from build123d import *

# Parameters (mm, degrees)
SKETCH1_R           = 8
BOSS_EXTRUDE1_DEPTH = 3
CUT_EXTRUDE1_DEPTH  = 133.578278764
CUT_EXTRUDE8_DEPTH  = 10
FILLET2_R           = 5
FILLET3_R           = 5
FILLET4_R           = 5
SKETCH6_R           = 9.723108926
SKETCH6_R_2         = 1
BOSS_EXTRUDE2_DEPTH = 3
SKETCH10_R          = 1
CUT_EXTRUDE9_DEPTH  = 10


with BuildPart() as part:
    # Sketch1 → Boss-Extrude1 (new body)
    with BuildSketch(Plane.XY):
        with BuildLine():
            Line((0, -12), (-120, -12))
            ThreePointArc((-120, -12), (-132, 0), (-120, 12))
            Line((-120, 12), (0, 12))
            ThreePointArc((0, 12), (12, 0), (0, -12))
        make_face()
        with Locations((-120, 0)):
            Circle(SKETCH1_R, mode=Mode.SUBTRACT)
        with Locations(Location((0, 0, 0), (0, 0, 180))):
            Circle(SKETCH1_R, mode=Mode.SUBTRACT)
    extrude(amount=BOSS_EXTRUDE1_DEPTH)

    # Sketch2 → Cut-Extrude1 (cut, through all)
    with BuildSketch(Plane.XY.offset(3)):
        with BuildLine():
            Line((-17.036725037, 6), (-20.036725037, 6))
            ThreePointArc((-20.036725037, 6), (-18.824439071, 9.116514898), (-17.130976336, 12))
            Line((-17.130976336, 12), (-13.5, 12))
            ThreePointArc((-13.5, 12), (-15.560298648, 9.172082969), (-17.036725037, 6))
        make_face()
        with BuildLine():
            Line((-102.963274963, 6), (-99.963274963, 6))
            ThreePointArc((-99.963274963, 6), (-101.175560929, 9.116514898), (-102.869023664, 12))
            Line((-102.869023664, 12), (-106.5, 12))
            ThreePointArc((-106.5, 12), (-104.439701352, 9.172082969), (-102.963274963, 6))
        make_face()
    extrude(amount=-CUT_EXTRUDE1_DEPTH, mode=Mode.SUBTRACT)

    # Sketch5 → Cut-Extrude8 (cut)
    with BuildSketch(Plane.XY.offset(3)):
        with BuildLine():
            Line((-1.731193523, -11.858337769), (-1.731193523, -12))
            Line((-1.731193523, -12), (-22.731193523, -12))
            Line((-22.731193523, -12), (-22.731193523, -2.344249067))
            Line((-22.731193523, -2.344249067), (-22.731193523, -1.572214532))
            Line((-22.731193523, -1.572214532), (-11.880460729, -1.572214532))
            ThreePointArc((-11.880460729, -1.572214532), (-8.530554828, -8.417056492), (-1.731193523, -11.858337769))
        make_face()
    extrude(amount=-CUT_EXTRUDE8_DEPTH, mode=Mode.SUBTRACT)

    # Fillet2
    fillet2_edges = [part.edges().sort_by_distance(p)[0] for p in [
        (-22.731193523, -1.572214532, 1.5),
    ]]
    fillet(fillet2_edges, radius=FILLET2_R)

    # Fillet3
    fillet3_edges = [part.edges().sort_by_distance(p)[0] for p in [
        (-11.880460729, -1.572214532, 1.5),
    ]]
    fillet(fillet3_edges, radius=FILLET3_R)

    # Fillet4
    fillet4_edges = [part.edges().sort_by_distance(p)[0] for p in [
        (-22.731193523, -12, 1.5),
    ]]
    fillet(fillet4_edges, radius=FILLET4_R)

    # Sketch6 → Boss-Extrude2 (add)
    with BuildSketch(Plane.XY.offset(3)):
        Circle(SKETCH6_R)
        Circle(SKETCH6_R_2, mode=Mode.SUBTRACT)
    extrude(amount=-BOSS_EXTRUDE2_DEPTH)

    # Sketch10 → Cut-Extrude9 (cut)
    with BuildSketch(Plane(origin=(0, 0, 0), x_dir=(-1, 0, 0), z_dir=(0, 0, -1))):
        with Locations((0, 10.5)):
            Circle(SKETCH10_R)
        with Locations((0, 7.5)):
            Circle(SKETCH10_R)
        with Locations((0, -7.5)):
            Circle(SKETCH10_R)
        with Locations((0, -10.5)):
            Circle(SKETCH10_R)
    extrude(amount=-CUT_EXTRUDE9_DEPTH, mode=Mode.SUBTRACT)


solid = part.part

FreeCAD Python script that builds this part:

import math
import FreeCAD as App
import Part
import Sketcher

V = App.Vector
Q = App.Units.Quantity


def edges_at(feature, points):
    """Names of the edges that pass closest to the given points."""
    edges = feature.Shape.Edges
    near = lambda p: min(range(len(edges)), key=lambda i: edges[i].distToShape(Part.Vertex(*p))[0])
    return sorted({f"Edge{near(p) + 1}" for p in points})

doc = App.newDocument("Part")
body = doc.addObject("PartDesign::Body", "Body")

# Sketch on XY plane
sketch1 = body.newObject("Sketcher::SketchObject", "Sketch")
sketch1.AttachmentSupport = (doc.getObject("XY_Plane"), [""])
sketch1.MapMode = "FlatFace"
sketch1.addGeometry([
    Part.LineSegment(V(-120, -12, 0), V(0, -12, 0)),  # 0
    Part.ArcOfCircle(Part.Circle(V(0, 0, 0), V(0, 0, 1), 12), math.radians(-90), math.radians(90)),  # 1
    Part.LineSegment(V(0, 12, 0), V(-120, 12, 0)),  # 2
    Part.ArcOfCircle(Part.Circle(V(-120, 0, 0), V(0, 0, 1), 12), math.radians(90), math.radians(270)),  # 3
    Part.Circle(V(0, 0, 0), V(0, 0, 1), 8),  # 4
    Part.Circle(V(-120, 0, 0), V(0, 0, 1), 8),  # 5
], False)
sketch1.addConstraint([
    Sketcher.Constraint("Tangent", 0, 2, 1, 1),
    Sketcher.Constraint("Tangent", 1, 2, 2, 1),
    Sketcher.Constraint("Tangent", 2, 2, 3, 1),
    Sketcher.Constraint("Tangent", 3, 2, 0, 1),
    Sketcher.Constraint("Horizontal", 0),
    Sketcher.Constraint("Horizontal", 2),
    Sketcher.Constraint("Coincident", 1, 3, -1, 1),
    Sketcher.Constraint("Coincident", 4, 3, -1, 1),
    Sketcher.Constraint("Coincident", 5, 3, 3, 3),
    Sketcher.Constraint("Equal", 4, 5),
    Sketcher.Constraint("Diameter", 4, Q("16 mm")),
    Sketcher.Constraint("Radius", 1, Q("12 mm")),
    Sketcher.Constraint("DistanceX", 0, 1, 0, 2, Q("120 mm")),
])
pad1 = body.newObject("PartDesign::Pad", "Pad")
pad1.Profile = sketch1
pad1.Length = 3

# Sketch on XY plane
sketch2 = body.newObject("Sketcher::SketchObject", "Sketch001")
sketch2.AttachmentSupport = (doc.getObject("XY_Plane"), [""])
sketch2.MapMode = "FlatFace"
sketch2.AttachmentOffset = App.Placement(V(0, 0, 3), App.Rotation())
sketch2.addGeometry([
    Part.LineSegment(V(-20.036725, 6, 0), V(-17.036725, 6, 0)),  # 0
    Part.ArcOfCircle(Part.Circle(V(0, 0, 0), V(0, 0, 1), 18.062392), math.radians(138.366461), math.radians(160.598737)),  # 1
    Part.LineSegment(V(-13.5, 12, 0), V(-17.130976, 12, 0)),  # 2
    Part.ArcOfCircle(Part.Circle(V(0, 0, 0), V(0, 0, 1), 20.915792), math.radians(144.989316), math.radians(163.329664)),  # 3
    Part.LineSegment(V(-102.963275, 6, 0), V(-99.963275, 6, 0)),  # 4
    Part.ArcOfCircle(Part.Circle(V(-120, 0, 0), V(0, 0, 1), 20.915792), math.radians(16.670336), math.radians(35.010684)),  # 5
    Part.LineSegment(V(-102.869024, 12, 0), V(-106.5, 12, 0)),  # 6
    Part.ArcOfCircle(Part.Circle(V(-120, 0, 0), V(0, 0, 1), 18.062392), math.radians(19.401263), math.radians(41.633539)),  # 7
], False)
sketch2.addConstraint([
    Sketcher.Constraint("Coincident", 0, 2, 1, 2),
    Sketcher.Constraint("Coincident", 1, 1, 2, 1),
    Sketcher.Constraint("Coincident", 2, 2, 3, 1),
    Sketcher.Constraint("Coincident", 3, 2, 0, 1),
    Sketcher.Constraint("Coincident", 4, 2, 5, 1),
    Sketcher.Constraint("Coincident", 5, 2, 6, 1),
    Sketcher.Constraint("Coincident", 6, 2, 7, 2),
    Sketcher.Constraint("Coincident", 7, 1, 4, 1),
    Sketcher.Constraint("Horizontal", 0),
    Sketcher.Constraint("Horizontal", 2),
    Sketcher.Constraint("Horizontal", 4),
    Sketcher.Constraint("Horizontal", 6),
    Sketcher.Constraint("Coincident", 1, 3, -1, 1),
    Sketcher.Constraint("Coincident", 3, 3, -1, 1),
    Sketcher.Constraint("Coincident", 7, 3, 5, 3),
    Sketcher.Constraint("Equal", 3, 5),
    Sketcher.Constraint("Equal", 1, 7),
    Sketcher.Constraint("PointOnObject", 5, 3, -1),
    Sketcher.Constraint("Horizontal", 3, 2, 4, 2),
    Sketcher.Constraint("Horizontal", 2, 2, 5, 2),
    Sketcher.Constraint("DistanceX", 0, 1, 0, 2, Q("3 mm")),
    Sketcher.Constraint("DistanceX", 5, 3, -1, 1, Q("120 mm")),
    Sketcher.Constraint("DistanceY", -1, 1, 0, 2, Q("6 mm")),
    Sketcher.Constraint("DistanceY", -1, 1, 1, 1, Q("12 mm")),
    Sketcher.Constraint("DistanceX", 1, 1, -1, 1, Q("13.5 mm")),
])
pocket1 = body.newObject("PartDesign::Pocket", "Pocket")
pocket1.Profile = sketch2
pocket1.Type = "ThroughAll"

# Sketch on XY plane
sketch3 = body.newObject("Sketcher::SketchObject", "Sketch002")
sketch3.AttachmentSupport = (doc.getObject("XY_Plane"), [""])
sketch3.MapMode = "FlatFace"
sketch3.AttachmentOffset = App.Placement(V(0, 0, 3), App.Rotation())
sketch3.addGeometry([
    Part.LineSegment(V(-1.731194, -12, 0), V(-1.731194, -11.858338, 0)),  # 0
    Part.ArcOfCircle(Part.Circle(V(0, 0, 0), V(0, 0, 1), 11.98404), math.radians(-172.4615), math.radians(-98.30591)),  # 1
    Part.LineSegment(V(-11.880461, -1.572215, 0), V(-22.731194, -1.572215, 0)),  # 2
    Part.LineSegment(V(-22.731194, -1.572215, 0), V(-22.731194, -12, 0)),  # 3
    Part.LineSegment(V(-22.731194, -12, 0), V(-1.731194, -12, 0)),  # 4
], False)
sketch3.addConstraint([
    Sketcher.Constraint("Coincident", 0, 2, 1, 2),
    Sketcher.Constraint("Coincident", 1, 1, 2, 1),
    Sketcher.Constraint("Coincident", 2, 2, 3, 1),
    Sketcher.Constraint("Coincident", 3, 2, 4, 1),
    Sketcher.Constraint("Coincident", 4, 2, 0, 1),
    Sketcher.Constraint("Vertical", 0),
    Sketcher.Constraint("Horizontal", 2),
    Sketcher.Constraint("Vertical", 3),
    Sketcher.Constraint("Horizontal", 4),
    Sketcher.Constraint("Coincident", 1, 3, -1, 1),
    Sketcher.Constraint("DistanceX", 4, 1, 4, 2, Q("21 mm")),
    Sketcher.Constraint("DistanceY", 3, 2, -1, 1, Q("12 mm")),
    Sketcher.Constraint("Radius", 1, Q("11.98404 mm")),
    Sketcher.Constraint("DistanceX", 2, 2, 2, 1, Q("10.850733 mm")),
    Sketcher.Constraint("DistanceY", 0, 1, 0, 2, Q("0.141662 mm")),
])
pocket2 = body.newObject("PartDesign::Pocket", "Pocket001")
pocket2.Profile = sketch3
pocket2.Length = 10
doc.recompute()

fillet = body.newObject("PartDesign::Fillet", "Fillet")
fillet.Base = (pocket2, edges_at(pocket2, [(-22.731, -1.572, 1.5)]))
fillet.Radius = 5
doc.recompute()

fillet2 = body.newObject("PartDesign::Fillet", "Fillet001")
fillet2.Base = (fillet, edges_at(fillet, [(-11.88, -1.572, 1.5)]))
fillet2.Radius = 5
doc.recompute()

fillet3 = body.newObject("PartDesign::Fillet", "Fillet002")
fillet3.Base = (fillet2, edges_at(fillet2, [(-22.731, -12, 1.5)]))
fillet3.Radius = 5

# Sketch on XY plane
sketch4 = body.newObject("Sketcher::SketchObject", "Sketch003")
sketch4.AttachmentSupport = (doc.getObject("XY_Plane"), [""])
sketch4.MapMode = "FlatFace"
sketch4.AttachmentOffset = App.Placement(V(0, 0, 3), App.Rotation())
sketch4.addGeometry([
    Part.Circle(V(0, 0, 0), V(0, 0, 1), 9.723109),
    Part.Circle(V(0, 0, 0), V(0, 0, 1), 1),
], False)
sketch4.addConstraint([
    Sketcher.Constraint("Coincident", 0, 3, -1, 1),
    Sketcher.Constraint("Coincident", 1, 3, -1, 1),
    Sketcher.Constraint("Diameter", 1, Q("2 mm")),
    Sketcher.Constraint("Diameter", 0, Q("19.446218 mm")),
])
pad2 = body.newObject("PartDesign::Pad", "Pad001")
pad2.Profile = sketch4
pad2.Length = 3
pad2.Reversed = True

# Sketch on XY plane
sketch5 = body.newObject("Sketcher::SketchObject", "Sketch004")
sketch5.AttachmentSupport = (doc.getObject("XY_Plane"), [""])
sketch5.MapMode = "FlatFace"
sketch5.addGeometry([
    Part.Circle(V(0, 10.5, 0), V(0, 0, 1), 1),
    Part.Circle(V(0, 7.5, 0), V(0, 0, 1), 1),
    Part.Circle(V(0, -7.5, 0), V(0, 0, 1), 1),
    Part.Circle(V(0, -10.5, 0), V(0, 0, 1), 1),
], False)
sketch5.addConstraint([
    Sketcher.Constraint("Equal", 0, 1),
    Sketcher.Constraint("Equal", 1, 2),
    Sketcher.Constraint("Equal", 2, 3),
    Sketcher.Constraint("Symmetric", 1, 3, 2, 3, -1, 1),
    Sketcher.Constraint("Symmetric", 0, 3, 3, 3, -1, 1),
    Sketcher.Constraint("PointOnObject", 0, 3, -2),
    Sketcher.Constraint("PointOnObject", 1, 3, -2),
    Sketcher.Constraint("Diameter", 0, Q("2 mm")),
    Sketcher.Constraint("DistanceY", 1, 3, 0, 3, Q("3 mm")),
    Sketcher.Constraint("DistanceY", 2, 3, 1, 3, Q("15 mm")),
])
pocket3 = body.newObject("PartDesign::Pocket", "Pocket002")
pocket3.Profile = sketch5
pocket3.Length = 10
pocket3.Reversed = True

doc.recompute()
